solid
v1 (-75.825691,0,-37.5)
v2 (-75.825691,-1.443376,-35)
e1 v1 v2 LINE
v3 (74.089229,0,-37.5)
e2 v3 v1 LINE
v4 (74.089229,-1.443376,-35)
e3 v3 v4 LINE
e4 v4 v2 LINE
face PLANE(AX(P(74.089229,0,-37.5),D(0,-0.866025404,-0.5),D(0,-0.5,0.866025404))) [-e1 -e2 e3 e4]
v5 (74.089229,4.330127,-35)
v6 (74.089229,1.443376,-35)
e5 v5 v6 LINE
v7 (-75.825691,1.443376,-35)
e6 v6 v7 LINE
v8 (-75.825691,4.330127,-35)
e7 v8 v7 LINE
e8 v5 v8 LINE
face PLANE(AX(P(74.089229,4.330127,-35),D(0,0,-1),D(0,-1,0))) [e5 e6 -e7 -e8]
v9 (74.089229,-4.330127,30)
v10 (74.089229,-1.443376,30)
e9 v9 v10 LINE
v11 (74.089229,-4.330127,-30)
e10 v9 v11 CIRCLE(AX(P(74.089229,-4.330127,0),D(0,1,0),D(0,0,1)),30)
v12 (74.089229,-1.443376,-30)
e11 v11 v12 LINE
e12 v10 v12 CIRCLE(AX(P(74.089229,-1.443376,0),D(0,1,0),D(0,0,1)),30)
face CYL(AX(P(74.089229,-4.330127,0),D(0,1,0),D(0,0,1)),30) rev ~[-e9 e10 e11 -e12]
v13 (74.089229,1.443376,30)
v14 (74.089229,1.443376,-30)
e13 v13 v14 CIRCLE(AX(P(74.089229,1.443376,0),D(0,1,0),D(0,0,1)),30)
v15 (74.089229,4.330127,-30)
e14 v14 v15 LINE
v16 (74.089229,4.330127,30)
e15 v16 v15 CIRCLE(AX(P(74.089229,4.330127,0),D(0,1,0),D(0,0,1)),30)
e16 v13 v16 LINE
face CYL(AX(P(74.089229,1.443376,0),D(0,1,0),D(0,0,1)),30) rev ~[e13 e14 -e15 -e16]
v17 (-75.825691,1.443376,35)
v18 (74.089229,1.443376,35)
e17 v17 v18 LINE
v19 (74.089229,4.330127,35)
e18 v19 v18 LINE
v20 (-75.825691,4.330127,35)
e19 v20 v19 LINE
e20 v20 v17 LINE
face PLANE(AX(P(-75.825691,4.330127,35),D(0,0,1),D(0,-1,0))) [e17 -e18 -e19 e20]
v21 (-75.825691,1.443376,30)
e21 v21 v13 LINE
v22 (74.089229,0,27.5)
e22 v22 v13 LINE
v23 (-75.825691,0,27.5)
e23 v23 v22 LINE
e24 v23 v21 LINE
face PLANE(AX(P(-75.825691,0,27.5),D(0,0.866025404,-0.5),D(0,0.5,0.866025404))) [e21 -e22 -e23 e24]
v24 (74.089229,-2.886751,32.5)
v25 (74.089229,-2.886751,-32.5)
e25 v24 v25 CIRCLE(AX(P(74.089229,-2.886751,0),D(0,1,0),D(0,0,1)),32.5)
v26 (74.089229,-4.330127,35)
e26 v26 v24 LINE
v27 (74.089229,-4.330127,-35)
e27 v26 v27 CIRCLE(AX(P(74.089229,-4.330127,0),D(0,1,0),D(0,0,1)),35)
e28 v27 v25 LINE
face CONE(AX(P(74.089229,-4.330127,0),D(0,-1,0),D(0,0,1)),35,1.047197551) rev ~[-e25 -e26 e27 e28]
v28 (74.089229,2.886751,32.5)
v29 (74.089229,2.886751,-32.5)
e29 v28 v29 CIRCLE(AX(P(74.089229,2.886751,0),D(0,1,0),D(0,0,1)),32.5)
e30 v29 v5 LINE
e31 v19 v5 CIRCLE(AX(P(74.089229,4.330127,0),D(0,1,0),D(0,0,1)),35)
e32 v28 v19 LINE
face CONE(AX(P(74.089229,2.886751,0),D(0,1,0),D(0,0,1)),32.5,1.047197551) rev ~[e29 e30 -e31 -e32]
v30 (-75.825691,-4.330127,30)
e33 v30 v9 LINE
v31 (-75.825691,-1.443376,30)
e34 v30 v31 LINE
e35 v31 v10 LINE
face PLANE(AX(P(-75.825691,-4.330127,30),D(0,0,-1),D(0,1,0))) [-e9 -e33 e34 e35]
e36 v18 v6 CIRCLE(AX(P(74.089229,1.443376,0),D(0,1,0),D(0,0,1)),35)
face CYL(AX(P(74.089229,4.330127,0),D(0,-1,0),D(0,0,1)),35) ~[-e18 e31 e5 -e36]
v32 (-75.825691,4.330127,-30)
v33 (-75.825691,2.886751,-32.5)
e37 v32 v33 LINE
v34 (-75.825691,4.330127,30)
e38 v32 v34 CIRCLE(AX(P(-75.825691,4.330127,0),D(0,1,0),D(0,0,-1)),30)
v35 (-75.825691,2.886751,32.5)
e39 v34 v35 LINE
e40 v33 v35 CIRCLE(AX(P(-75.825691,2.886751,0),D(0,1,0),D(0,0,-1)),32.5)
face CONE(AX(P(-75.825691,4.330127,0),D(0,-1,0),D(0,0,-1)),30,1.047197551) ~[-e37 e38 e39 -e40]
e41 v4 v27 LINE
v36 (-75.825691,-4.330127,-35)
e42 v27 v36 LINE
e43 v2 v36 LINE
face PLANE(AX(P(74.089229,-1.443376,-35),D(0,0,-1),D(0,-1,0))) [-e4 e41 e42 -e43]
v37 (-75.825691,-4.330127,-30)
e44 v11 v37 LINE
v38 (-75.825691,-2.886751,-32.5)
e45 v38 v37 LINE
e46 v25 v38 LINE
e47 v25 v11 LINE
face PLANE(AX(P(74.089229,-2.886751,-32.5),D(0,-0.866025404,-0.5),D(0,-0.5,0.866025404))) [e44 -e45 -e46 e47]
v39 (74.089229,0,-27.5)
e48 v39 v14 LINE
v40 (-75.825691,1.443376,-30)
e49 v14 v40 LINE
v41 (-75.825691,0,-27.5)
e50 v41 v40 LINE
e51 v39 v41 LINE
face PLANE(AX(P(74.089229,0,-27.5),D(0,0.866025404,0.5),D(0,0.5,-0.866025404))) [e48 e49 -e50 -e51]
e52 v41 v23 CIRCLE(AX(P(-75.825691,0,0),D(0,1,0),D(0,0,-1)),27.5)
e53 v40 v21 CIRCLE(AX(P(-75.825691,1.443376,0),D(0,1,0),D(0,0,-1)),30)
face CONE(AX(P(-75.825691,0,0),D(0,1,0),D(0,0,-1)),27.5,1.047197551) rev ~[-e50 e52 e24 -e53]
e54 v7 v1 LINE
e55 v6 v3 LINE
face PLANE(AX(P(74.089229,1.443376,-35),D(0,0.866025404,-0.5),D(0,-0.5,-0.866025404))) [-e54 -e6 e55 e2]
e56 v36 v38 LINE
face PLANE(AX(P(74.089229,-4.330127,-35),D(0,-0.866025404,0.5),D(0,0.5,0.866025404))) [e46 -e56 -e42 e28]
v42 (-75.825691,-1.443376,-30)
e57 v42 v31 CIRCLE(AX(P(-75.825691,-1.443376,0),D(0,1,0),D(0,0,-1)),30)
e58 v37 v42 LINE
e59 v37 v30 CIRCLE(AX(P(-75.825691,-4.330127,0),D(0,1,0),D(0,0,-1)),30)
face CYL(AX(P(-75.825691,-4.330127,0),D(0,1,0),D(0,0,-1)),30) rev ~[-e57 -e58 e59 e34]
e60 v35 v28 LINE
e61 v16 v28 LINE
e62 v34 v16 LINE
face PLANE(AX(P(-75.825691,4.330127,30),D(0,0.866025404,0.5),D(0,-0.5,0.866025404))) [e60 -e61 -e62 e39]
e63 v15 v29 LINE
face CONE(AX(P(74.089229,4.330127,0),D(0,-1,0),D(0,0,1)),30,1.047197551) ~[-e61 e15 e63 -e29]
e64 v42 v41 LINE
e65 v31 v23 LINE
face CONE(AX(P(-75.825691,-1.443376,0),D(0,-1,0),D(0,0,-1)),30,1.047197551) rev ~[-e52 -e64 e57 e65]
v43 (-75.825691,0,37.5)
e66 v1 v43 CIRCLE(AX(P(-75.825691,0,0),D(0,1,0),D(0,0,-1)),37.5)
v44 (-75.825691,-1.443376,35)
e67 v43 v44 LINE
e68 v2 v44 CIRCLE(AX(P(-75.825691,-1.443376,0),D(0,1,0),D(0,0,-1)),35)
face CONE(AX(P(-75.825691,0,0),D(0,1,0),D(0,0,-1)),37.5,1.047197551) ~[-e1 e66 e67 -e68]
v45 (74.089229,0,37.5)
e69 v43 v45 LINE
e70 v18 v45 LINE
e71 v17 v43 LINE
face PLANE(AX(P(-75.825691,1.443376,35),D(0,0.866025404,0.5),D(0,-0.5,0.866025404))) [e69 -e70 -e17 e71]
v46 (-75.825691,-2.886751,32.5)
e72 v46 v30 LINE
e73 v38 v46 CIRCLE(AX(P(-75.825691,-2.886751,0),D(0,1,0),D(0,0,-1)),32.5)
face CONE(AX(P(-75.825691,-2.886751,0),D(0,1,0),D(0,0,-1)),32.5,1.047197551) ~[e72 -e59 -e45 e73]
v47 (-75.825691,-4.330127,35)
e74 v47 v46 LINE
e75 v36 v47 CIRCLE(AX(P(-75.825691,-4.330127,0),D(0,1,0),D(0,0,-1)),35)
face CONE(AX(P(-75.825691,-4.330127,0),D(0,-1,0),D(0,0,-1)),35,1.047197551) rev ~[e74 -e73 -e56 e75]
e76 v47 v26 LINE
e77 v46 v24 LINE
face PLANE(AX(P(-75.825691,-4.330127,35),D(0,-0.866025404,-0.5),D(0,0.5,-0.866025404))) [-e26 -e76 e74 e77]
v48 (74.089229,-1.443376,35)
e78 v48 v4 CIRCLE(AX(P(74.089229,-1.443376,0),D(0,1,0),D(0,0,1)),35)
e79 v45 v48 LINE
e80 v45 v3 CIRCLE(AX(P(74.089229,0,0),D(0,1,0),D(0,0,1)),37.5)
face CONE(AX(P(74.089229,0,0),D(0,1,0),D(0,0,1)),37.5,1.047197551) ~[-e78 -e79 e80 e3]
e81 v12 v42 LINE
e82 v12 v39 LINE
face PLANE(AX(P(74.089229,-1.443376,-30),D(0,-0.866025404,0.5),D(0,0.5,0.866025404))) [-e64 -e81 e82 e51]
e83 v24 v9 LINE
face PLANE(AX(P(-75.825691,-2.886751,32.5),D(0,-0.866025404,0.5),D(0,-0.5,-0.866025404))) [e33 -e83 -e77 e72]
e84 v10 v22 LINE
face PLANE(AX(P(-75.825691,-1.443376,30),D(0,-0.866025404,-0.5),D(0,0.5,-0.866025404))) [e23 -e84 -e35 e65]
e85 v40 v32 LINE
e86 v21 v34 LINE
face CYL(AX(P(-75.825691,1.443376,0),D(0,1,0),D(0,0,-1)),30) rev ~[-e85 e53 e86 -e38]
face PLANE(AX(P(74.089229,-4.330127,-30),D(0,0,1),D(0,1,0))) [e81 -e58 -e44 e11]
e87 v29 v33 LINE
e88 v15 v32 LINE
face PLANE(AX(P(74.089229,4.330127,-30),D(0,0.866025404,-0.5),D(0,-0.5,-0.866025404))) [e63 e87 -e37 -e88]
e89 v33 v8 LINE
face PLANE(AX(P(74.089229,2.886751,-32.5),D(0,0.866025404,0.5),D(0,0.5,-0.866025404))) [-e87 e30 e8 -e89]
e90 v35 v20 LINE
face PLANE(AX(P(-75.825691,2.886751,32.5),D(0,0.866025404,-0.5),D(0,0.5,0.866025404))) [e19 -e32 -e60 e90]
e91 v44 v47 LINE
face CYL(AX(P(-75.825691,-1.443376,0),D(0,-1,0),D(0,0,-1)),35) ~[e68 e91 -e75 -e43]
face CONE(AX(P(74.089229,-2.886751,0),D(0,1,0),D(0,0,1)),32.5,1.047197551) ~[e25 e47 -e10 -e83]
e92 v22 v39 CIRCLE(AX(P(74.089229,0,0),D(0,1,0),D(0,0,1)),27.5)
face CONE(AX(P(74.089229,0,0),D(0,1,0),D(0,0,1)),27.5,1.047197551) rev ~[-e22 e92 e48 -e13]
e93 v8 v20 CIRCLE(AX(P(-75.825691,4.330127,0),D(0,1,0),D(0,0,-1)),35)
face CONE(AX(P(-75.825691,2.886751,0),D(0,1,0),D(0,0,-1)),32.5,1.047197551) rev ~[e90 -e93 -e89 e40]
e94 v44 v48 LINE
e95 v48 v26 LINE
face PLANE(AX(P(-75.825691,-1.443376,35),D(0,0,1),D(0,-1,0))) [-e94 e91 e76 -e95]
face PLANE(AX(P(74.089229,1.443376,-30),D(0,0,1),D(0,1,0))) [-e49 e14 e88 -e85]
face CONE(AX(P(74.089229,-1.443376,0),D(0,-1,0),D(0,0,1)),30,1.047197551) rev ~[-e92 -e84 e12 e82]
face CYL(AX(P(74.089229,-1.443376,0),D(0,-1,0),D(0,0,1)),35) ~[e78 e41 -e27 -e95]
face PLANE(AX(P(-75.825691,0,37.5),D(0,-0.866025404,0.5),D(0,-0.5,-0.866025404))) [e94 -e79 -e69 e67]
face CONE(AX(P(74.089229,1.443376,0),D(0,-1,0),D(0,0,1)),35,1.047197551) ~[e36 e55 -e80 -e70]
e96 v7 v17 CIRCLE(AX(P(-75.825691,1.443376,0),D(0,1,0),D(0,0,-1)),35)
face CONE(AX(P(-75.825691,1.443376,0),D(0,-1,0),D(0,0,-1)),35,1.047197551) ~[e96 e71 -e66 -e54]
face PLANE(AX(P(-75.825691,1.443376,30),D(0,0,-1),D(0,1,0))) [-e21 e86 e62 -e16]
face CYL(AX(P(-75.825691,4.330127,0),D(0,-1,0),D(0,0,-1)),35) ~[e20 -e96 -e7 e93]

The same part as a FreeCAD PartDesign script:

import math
import FreeCAD as App
import Part
import Sketcher
Q = App.Units.Quantity


def add_polygon(sketch, points):
    """Adds a closed chain of lines whose ends are joined by coincident constraints."""
    first, n = sketch.GeometryCount, len(points)
    for a, b in zip(points, points[1:] + points[:1]):
        sketch.addGeometry(Part.LineSegment(App.Vector(*a, 0), App.Vector(*b, 0)), False)
    for i in range(n):
        sketch.addConstraint(Sketcher.Constraint("Coincident", first + i, 2, first + (i + 1) % n, 1))

doc = App.newDocument("Part")
params = doc.addObject("Spreadsheet::Sheet", "Params")
for row, (alias, value) in enumerate([
    ("sketch2_radius", "30 mm"),
], start=1):
    params.set(f"A{row}", alias)
    params.set(f"B{row}", "=" + value)
    params.setAlias(f"B{row}", alias)

body = doc.addObject("PartDesign::Body", "Body")

# Sketch on YZ plane
sketch1 = body.newObject("Sketcher::SketchObject", "Sketch")
sketch1.AttachmentSupport = (doc.getObject("YZ_Plane"), [""])
sketch1.MapMode = "FlatFace"
sketch1.AttachmentOffset = App.Placement(App.Vector(0, 0, 74.089229), App.Rotation())
add_polygon(sketch1, [(2.9, 32.5), (4.3, 35), (1.4, 35), (0, 37.5), (-1.4, 35), (-4.3, 35), (-2.9, 32.5), (-4.3, 30), (-1.4, 30), (0, 27.5), (1.4, 30), (4.3, 30)])  # lines 0-11
sketch1.addConstraint(Sketcher.Constraint("Horizontal", 1))
sketch1.addConstraint(Sketcher.Constraint("Horizontal", 4))
sketch1.addConstraint(Sketcher.Constraint("Horizontal", 7))
sketch1.addConstraint(Sketcher.Constraint("Horizontal", 10))
sketch1.addConstraint(Sketcher.Constraint("Symmetric", 1, 2, 3, 2, -2))
sketch1.addConstraint(Sketcher.Constraint("Symmetric", 7, 2, 9, 2, -2))
sketch1.addConstraint(Sketcher.Constraint("Symmetric", 5, 2, 11, 2, -2))
sketch1.addConstraint(Sketcher.Constraint("PointOnObject", 2, 2, -2))
sketch1.addConstraint(Sketcher.Constraint("PointOnObject", 8, 2, -2))
sketch1.addConstraint(Sketcher.Constraint("Parallel", 0, 3))
sketch1.addConstraint(Sketcher.Constraint("Parallel", 2, 5))
sketch1.addConstraint(Sketcher.Constraint("Parallel", 3, 6))
sketch1.addConstraint(Sketcher.Constraint("Parallel", 5, 8))
sketch1.addConstraint(Sketcher.Constraint("Parallel", 8, 11))
sketch1.addConstraint(Sketcher.Constraint("Vertical", 4, 2, 6, 2))
sketch1.addConstraint(Sketcher.Constraint("Vertical", 3, 2, 7, 2))
sketch1.addConstraint(Sketcher.Constraint("Equal", 0, 2))
sketch1.addConstraint(Sketcher.Constraint("Angle", 0, Q("60 deg")))
sketch1.addConstraint(Sketcher.Constraint("DistanceY", -1, 1, 0, 2, Q("35 mm")))
sketch1.addConstraint(Sketcher.Constraint("DistanceY", -1, 1, 6, 2, Q("30 mm")))
sketch1.addConstraint(Sketcher.Constraint("DistanceX", 1, 2, 1, 1, Q("2.886751 mm")))

# Sketch on XZ plane
sketch2 = body.newObject("Sketcher::SketchObject", "Sketch001")
sketch2.AttachmentSupport = (doc.getObject("XZ_Plane"), [""])
sketch2.MapMode = "FlatFace"
sketch2.addGeometry(Part.LineSegment(App.Vector(-76, 30, 0), App.Vector(74, 30, 0)), False)
sketch2.addGeometry(Part.ArcOfCircle(Part.Circle(App.Vector(74, 0, 0), App.Vector(0, 0, 1), 30), math.radians(-90), math.radians(90)), False)
sketch2.addGeometry(Part.LineSegment(App.Vector(74, -30, 0), App.Vector(-76, -30, 0)), False)
sketch2.addGeometry(Part.ArcOfCircle(Part.Circle(App.Vector(-76, 0, 0), App.Vector(0, 0, 1), 30), math.radians(90), math.radians(270)), False)
sketch2.addConstraint(Sketcher.Constraint("Tangent", 0, 2, 1, 2))
sketch2.addConstraint(Sketcher.Constraint("Tangent", 1, 1, 2, 1))
sketch2.addConstraint(Sketcher.Constraint("Tangent", 2, 2, 3, 2))
sketch2.addConstraint(Sketcher.Constraint("Tangent", 3, 1, 0, 1))
sketch2.addConstraint(Sketcher.Constraint("Horizontal", 0))
sketch2.addConstraint(Sketcher.Constraint("Horizontal", 2))
sketch2.addConstraint(Sketcher.Constraint("PointOnObject", 1, 3, -1))
sketch2.addConstraint(Sketcher.Constraint("Radius", 1, Q("30 mm")))
sketch2.addConstraint(Sketcher.Constraint("DistanceX", 0, 1, 0, 2, Q("149.91492 mm")))
sketch2.addConstraint(Sketcher.Constraint("DistanceX", -1, 1, 1, 3, Q("74.089229 mm")))
sketch2.setExpression("Constraints[7]", "Params.sketch2_radius")
doc.recompute()

additivepipe = body.newObject("PartDesign::AdditivePipe", "AdditivePipe")
additivepipe.Profile = sketch1
additivepipe.Spine = (sketch2, ["Edge1", "Edge2", "Edge3", "Edge4"])

doc.recompute()
